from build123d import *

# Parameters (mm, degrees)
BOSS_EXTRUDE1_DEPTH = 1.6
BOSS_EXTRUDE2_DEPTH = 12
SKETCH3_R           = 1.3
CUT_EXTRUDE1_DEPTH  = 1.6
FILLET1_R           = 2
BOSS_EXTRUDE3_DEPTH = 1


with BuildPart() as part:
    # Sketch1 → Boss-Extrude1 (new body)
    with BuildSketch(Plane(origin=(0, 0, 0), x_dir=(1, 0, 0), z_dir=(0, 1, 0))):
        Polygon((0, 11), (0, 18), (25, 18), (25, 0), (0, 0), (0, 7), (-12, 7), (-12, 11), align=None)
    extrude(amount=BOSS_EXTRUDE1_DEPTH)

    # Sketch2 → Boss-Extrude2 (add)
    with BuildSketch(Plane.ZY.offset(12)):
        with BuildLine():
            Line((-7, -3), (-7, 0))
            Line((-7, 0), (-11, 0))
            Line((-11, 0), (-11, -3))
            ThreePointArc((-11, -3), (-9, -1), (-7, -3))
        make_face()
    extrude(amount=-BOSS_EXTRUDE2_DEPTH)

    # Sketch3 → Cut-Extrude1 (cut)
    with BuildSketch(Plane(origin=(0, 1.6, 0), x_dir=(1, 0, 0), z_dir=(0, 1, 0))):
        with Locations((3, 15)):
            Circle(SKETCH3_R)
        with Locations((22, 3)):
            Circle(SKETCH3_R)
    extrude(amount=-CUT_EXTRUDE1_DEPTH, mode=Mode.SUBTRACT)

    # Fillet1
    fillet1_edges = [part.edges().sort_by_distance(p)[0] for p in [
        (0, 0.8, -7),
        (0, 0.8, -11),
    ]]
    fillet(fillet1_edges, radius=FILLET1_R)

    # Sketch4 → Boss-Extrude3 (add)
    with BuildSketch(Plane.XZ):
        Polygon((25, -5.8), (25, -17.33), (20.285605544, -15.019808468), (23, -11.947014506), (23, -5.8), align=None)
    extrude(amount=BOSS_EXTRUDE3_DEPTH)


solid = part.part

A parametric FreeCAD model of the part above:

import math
import FreeCAD as App
import Part
import Sketcher
Q = App.Units.Quantity


def edges_at(feature, points):
    """Names of the edges that pass closest to the given points."""
    edges = feature.Shape.Edges
    near = lambda p: min(range(len(edges)), key=lambda i: edges[i].distToShape(Part.Vertex(*p))[0])
    return sorted({f"Edge{near(p) + 1}" for p in points})

doc = App.newDocument("Part")
params = doc.addObject("Spreadsheet::Sheet", "Params")
for row, (alias, value) in enumerate([
    ("sketch1_width", "12 mm"),
    ("sketch1_width2", "25 mm"),
    ("sketch1_height", "7 mm"),
    ("sketch1_height2", "4 mm"),
    ("pad1_length", "1.6 mm"),
    ("sketch2_radius", "2 mm"),
    ("sketch2_width", "3 mm"),
    ("pad2_length", "12 mm"),
    ("sketch3_diameter", "2.6 mm"),
    ("pocket1_length", "1.6 mm"),
    ("fillet_radius", "2 mm"),
    ("sketch4_width", "2 mm"),
    ("sketch4_length", "4.1 mm"),
    ("sketch4_height", "11.53 mm"),
    ("sketch4_length2", "5.25 mm"),
    ("pad3_length", "1 mm"),
], start=1):
    params.set(f"A{row}", alias)
    params.set(f"B{row}", "=" + value)
    params.setAlias(f"B{row}", alias)

body = doc.addObject("PartDesign::Body", "Body")

# Sketch on XZ plane
sketch1 = body.newObject("Sketcher::SketchObject", "Sketch")
sketch1.AttachmentSupport = (doc.getObject("XZ_Plane"), [""])
sketch1.MapMode = "FlatFace"
sketch1.addGeometry([
    Part.LineSegment(App.Vector(0, -18, 0), App.Vector(0, -11, 0)),  # 0
    Part.LineSegment(App.Vector(0, -11, 0), App.Vector(-12, -11, 0)),  # 1
    Part.LineSegment(App.Vector(-12, -11, 0), App.Vector(-12, -7, 0)),  # 2
    Part.LineSegment(App.Vector(-12, -7, 0), App.Vector(0, -7, 0)),  # 3
    Part.LineSegment(App.Vector(0, -7, 0), App.Vector(0, 0, 0)),  # 4
    Part.LineSegment(App.Vector(0, 0, 0), App.Vector(25, 0, 0)),  # 5
    Part.LineSegment(App.Vector(25, 0, 0), App.Vector(25, -18, 0)),  # 6
    Part.LineSegment(App.Vector(25, -18, 0), App.Vector(0, -18, 0)),  # 7
], False)
sketch1.addConstraint([
    Sketcher.Constraint("Coincident", 0, 2, 1, 1),
    Sketcher.Constraint("Coincident", 1, 2, 2, 1),
    Sketcher.Constraint("Coincident", 2, 2, 3, 1),
    Sketcher.Constraint("Coincident", 3, 2, 4, 1),
    Sketcher.Constraint("Coincident", 4, 2, 5, 1),
    Sketcher.Constraint("Coincident", 5, 2, 6, 1),
    Sketcher.Constraint("Coincident", 6, 2, 7, 1),
    Sketcher.Constraint("Coincident", 7, 2, 0, 1),
    Sketcher.Constraint("Vertical", 0),
    Sketcher.Constraint("Horizontal", 1),
    Sketcher.Constraint("Vertical", 2),
    Sketcher.Constraint("Horizontal", 3),
    Sketcher.Constraint("Vertical", 4),
    Sketcher.Constraint("Horizontal", 5),
    Sketcher.Constraint("Vertical", 6),
    Sketcher.Constraint("Horizontal", 7),
    Sketcher.Constraint("Coincident", 4, 2, -1, 1),
    Sketcher.Constraint("PointOnObject", 0, 2, -2),
    Sketcher.Constraint("Equal", 0, 4),
    Sketcher.Constraint("DistanceX", 1, 2, 1, 1, Q("12 mm")),
    Sketcher.Constraint("DistanceX", 5, 1, 5, 2, Q("25 mm")),
    Sketcher.Constraint("DistanceY", 0, 1, 0, 2, Q("7 mm")),
    Sketcher.Constraint("DistanceY", 2, 1, 2, 2, Q("4 mm")),
])
sketch1.setExpression("Constraints[19]", "Params.sketch1_width")
sketch1.setExpression("Constraints[20]", "Params.sketch1_width2")
sketch1.setExpression("Constraints[21]", "Params.sketch1_height")
sketch1.setExpression("Constraints[22]", "Params.sketch1_height2")
pad1 = body.newObject("PartDesign::Pad", "Pad")
pad1.Profile = sketch1
pad1.setExpression("Length", "Params.pad1_length")
pad1.Reversed = True

# Sketch on YZ plane
sketch2 = body.newObject("Sketcher::SketchObject", "Sketch001")
sketch2.AttachmentSupport = (doc.getObject("YZ_Plane"), [""])
sketch2.MapMode = "FlatFace"
sketch2.AttachmentOffset = App.Placement(App.Vector(0, 0, -12), App.Rotation())
sketch2.addGeometry([
    Part.LineSegment(App.Vector(-3, -7, 0), App.Vector(0, -7, 0)),
    Part.LineSegment(App.Vector(0, -7, 0), App.Vector(0, -11, 0)),
    Part.LineSegment(App.Vector(0, -11, 0), App.Vector(-3, -11, 0)),
    Part.ArcOfCircle(Part.Circle(App.Vector(-3, -9, 0), App.Vector(0, 0, 1), 2), math.radians(-90), math.radians(90)),
], False)
sketch2.addConstraint([
    Sketcher.Constraint("Coincident", 0, 2, 1, 1),
    Sketcher.Constraint("Coincident", 1, 2, 2, 1),
    Sketcher.Constraint("Tangent", 2, 2, 3, 1),
    Sketcher.Constraint("Tangent", 3, 2, 0, 1),
    Sketcher.Constraint("Horizontal", 0),
    Sketcher.Constraint("Vertical", 1),
    Sketcher.Constraint("Horizontal", 2),
    Sketcher.Constraint("PointOnObject", 0, 2, -2),
    Sketcher.Constraint("Radius", 3, Q("2 mm")),
    Sketcher.Constraint("DistanceX", 0, 1, 0, 2, Q("3 mm")),
    Sketcher.Constraint("DistanceY", 3, 3, -1, 1, Q("9 mm")),
])
sketch2.setExpression("Constraints[8]", "Params.sketch2_radius")
sketch2.setExpression("Constraints[9]", "Params.sketch2_width")
pad2 = body.newObject("PartDesign::Pad", "Pad001")
pad2.Profile = sketch2
pad2.setExpression("Length", "Params.pad2_length")

# Sketch on XZ plane
sketch3 = body.newObject("Sketcher::SketchObject", "Sketch002")
sketch3.AttachmentSupport = (doc.getObject("XZ_Plane"), [""])
sketch3.MapMode = "FlatFace"
sketch3.AttachmentOffset = App.Placement(App.Vector(0, 0, -1.6), App.Rotation())
sketch3.addGeometry([
    Part.Circle(App.Vector(3, -15, 0), App.Vector(0, 0, 1), 1.3),
    Part.Circle(App.Vector(22, -3, 0), App.Vector(0, 0, 1), 1.3),
], False)
sketch3.addConstraint([
    Sketcher.Constraint("Equal", 0, 1),
    Sketcher.Constraint("Diameter", 0, Q("2.6 mm")),
    Sketcher.Constraint("DistanceX", -1, 1, 0, 3, Q("3 mm")),
    Sketcher.Constraint("DistanceY", 0, 3, -1, 1, Q("15 mm")),
    Sketcher.Constraint("DistanceX", -1, 1, 1, 3, Q("22 mm")),
    Sketcher.Constraint("DistanceY", 1, 3, -1, 1, Q("3 mm")),
])
sketch3.setExpression("Constraints[1]", "Params.sketch3_diameter")
pocket1 = body.newObject("PartDesign::Pocket", "Pocket")
pocket1.Profile = sketch3
pocket1.setExpression("Length", "Params.pocket1_length")
pocket1.Reversed = True
doc.recompute()

fillet = body.newObject("PartDesign::Fillet", "Fillet")
fillet.Base = (pocket1, edges_at(pocket1, [(0, 0.8, -7), (0, 0.8, -11)]))
fillet.setExpression("Radius", "Params.fillet_radius")

# Sketch on XZ plane
sketch4 = body.newObject("Sketcher::SketchObject", "Sketch003")
sketch4.AttachmentSupport = (doc.getObject("XZ_Plane"), [""])
sketch4.MapMode = "FlatFace"
sketch4.addGeometry([
    Part.LineSegment(App.Vector(25, -17.3, 0), App.Vector(25, -5.8, 0)),  # 0
    Part.LineSegment(App.Vector(25, -5.8, 0), App.Vector(23, -5.8, 0)),  # 1
    Part.LineSegment(App.Vector(23, -5.8, 0), App.Vector(23, -11.9, 0)),  # 2
    Part.LineSegment(App.Vector(23, -11.9, 0), App.Vector(20.3, -15, 0)),  # 3
    Part.LineSegment(App.Vector(20.3, -15, 0), App.Vector(25, -17.3, 0)),  # 4
], False)
sketch4.addConstraint([
    Sketcher.Constraint("Coincident", 0, 2, 1, 1),
    Sketcher.Constraint("Coincident", 1, 2, 2, 1),
    Sketcher.Constraint("Coincident", 2, 2, 3, 1),
    Sketcher.Constraint("Coincident", 3, 2, 4, 1),
    Sketcher.Constraint("Coincident", 4, 2, 0, 1),
    Sketcher.Constraint("Vertical", 0),
    Sketcher.Constraint("Horizontal", 1),
    Sketcher.Constraint("Vertical", 2),
    Sketcher.Constraint("DistanceX", 1, 2, 1, 1, Q("2 mm")),
    Sketcher.Constraint("DistanceX", -1, 1, 0, 2, Q("25 mm")),
    Sketcher.Constraint("Distance", 3, Q("4.1 mm")),
    Sketcher.Constraint("DistanceY", 0, 1, 0, 2, Q("11.53 mm")),
    Sketcher.Constraint("DistanceY", 0, 2, -1, 1, Q("5.8 mm")),
    Sketcher.Constraint("Distance", 4, Q("5.25 mm")),
    Sketcher.Constraint("DistanceY", 2, 2, 2, 1, Q("6.147015 mm")),
])
sketch4.setExpression("Constraints[8]", "Params.sketch4_width")
sketch4.setExpression("Constraints[10]", "Params.sketch4_length")
sketch4.setExpression("Constraints[11]", "Params.sketch4_height")
sketch4.setExpression("Constraints[13]", "Params.sketch4_length2")
pad3 = body.newObject("PartDesign::Pad", "Pad002")
pad3.Profile = sketch4
pad3.setExpression("Length", "Params.pad3_length")

doc.recompute()
